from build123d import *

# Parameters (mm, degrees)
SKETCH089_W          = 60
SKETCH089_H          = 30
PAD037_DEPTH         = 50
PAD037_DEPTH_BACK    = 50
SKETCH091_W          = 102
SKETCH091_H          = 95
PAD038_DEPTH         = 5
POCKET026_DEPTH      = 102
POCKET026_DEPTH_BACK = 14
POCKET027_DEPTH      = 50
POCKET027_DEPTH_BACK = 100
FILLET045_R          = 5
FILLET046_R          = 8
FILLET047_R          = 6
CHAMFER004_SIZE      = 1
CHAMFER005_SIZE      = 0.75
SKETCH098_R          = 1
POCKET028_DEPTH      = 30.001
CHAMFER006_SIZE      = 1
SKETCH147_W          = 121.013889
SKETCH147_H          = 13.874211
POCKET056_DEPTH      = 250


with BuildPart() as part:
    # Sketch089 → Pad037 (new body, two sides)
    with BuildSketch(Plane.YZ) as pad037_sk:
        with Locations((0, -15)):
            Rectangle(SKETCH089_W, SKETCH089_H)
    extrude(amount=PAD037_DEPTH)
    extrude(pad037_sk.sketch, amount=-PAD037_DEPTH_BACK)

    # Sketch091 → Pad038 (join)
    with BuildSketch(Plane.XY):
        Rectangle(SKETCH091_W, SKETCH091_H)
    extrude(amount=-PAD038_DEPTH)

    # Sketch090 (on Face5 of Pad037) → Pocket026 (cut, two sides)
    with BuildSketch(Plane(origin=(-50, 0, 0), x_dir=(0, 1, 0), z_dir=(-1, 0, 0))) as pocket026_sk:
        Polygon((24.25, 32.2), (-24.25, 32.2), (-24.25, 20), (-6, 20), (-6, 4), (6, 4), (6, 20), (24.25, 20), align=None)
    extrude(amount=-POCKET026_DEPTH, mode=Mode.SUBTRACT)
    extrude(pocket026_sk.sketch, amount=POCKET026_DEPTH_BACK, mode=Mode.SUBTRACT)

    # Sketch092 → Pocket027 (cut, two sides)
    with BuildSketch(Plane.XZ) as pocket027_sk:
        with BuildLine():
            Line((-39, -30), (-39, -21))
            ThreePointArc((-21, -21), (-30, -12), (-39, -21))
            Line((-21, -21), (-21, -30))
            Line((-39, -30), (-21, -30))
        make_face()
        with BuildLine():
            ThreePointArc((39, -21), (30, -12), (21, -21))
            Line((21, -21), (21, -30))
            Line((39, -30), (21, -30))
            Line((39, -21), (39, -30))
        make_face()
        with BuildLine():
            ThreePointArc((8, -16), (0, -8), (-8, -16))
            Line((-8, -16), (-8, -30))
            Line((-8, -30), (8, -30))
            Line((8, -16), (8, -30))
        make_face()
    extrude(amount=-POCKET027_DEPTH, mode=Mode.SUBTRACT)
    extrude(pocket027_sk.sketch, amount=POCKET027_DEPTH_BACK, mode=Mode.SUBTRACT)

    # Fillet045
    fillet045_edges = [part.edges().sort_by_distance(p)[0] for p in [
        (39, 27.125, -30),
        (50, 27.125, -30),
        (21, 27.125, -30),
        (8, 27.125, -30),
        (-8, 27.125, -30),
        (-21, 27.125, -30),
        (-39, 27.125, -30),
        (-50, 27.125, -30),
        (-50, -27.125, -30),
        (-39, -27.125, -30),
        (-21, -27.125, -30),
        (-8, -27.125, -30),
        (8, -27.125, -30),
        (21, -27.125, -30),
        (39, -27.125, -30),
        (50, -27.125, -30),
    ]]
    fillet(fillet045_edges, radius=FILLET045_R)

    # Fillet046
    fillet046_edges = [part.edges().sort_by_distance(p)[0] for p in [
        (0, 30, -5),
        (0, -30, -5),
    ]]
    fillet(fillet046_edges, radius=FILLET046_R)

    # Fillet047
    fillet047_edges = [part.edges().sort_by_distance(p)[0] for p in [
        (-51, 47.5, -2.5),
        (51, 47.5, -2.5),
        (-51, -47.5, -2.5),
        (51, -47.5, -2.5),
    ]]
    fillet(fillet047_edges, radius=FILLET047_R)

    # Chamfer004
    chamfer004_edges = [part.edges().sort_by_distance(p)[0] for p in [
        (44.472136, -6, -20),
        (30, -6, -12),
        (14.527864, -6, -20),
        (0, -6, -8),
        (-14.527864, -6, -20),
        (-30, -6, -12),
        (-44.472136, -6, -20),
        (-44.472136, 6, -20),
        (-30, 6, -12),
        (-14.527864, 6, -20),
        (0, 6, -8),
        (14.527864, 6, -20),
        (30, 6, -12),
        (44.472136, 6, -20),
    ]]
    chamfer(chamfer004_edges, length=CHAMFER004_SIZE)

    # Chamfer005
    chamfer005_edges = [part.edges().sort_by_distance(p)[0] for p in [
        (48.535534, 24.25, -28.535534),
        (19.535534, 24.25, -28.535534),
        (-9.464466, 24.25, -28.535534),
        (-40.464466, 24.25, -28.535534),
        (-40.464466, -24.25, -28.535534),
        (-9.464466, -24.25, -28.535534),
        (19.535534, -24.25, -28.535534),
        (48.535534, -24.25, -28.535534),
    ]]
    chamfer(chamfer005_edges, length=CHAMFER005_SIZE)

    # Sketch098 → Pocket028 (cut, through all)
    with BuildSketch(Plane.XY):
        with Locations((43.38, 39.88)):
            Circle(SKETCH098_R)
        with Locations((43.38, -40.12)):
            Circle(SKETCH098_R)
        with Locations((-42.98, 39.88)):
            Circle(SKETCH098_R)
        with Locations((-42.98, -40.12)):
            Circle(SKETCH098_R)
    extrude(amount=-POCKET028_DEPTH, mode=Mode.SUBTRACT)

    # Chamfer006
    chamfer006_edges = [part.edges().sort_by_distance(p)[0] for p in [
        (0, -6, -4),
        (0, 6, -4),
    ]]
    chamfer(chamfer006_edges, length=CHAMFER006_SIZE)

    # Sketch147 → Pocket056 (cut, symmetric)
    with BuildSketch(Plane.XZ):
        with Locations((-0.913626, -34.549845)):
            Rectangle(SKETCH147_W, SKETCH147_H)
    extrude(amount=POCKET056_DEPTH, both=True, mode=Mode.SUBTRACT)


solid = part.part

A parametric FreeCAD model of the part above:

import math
import FreeCAD as App
import Part
import Sketcher
Q = App.Units.Quantity


def edges_at(feature, points):
    """Names of the edges that pass closest to the given points."""
    edges = feature.Shape.Edges
    near = lambda p: min(range(len(edges)), key=lambda i: edges[i].distToShape(Part.Vertex(*p))[0])
    return sorted({f"Edge{near(p) + 1}" for p in points})

doc = App.newDocument("Part")
body = doc.addObject("PartDesign::Body", "Body")

sketch1 = body.newObject("Sketcher::SketchObject", "Sketch")
sketch1.AttachmentSupport = (doc.getObject("YZ_Plane"), [""])
sketch1.MapMode = "FlatFace"
sketch1.addGeometry([
    Part.LineSegment(App.Vector(-30, 0, 0), App.Vector(-30, -30, 0)),
    Part.LineSegment(App.Vector(-30, -30, 0), App.Vector(30, -30, 0)),
    Part.LineSegment(App.Vector(30, -30, 0), App.Vector(30, 0, 0)),
    Part.LineSegment(App.Vector(30, 0, 0), App.Vector(-30, 0, 0)),
], False)
sketch1.addConstraint([
    Sketcher.Constraint("Coincident", 0, 2, 1, 1),
    Sketcher.Constraint("Coincident", 1, 2, 2, 1),
    Sketcher.Constraint("Coincident", 2, 2, 3, 1),
    Sketcher.Constraint("Coincident", 3, 2, 0, 1),
    Sketcher.Constraint("Vertical", 0),
    Sketcher.Constraint("Horizontal", 1),
    Sketcher.Constraint("Vertical", 2),
    Sketcher.Constraint("Horizontal", 3),
    Sketcher.Constraint("Symmetric", 2, 2, 3, 2, -1, 1),
    Sketcher.Constraint("DistanceX", 1, 1, 1, 2, Q("60 mm")),
    Sketcher.Constraint("DistanceY", 0, 2, 0, 1, Q("30 mm")),
])
pad1 = body.newObject("PartDesign::Pad", "Pad")
pad1.Profile = sketch1
pad1.Type = "TwoLengths"
pad1.Length = 50
pad1.Length2 = 50

sketch2 = body.newObject("Sketcher::SketchObject", "Sketch001")
sketch2.AttachmentSupport = (doc.getObject("XY_Plane"), [""])
sketch2.MapMode = "FlatFace"
sketch2.addGeometry([
    Part.LineSegment(App.Vector(-51, 48, 0), App.Vector(-51, -48, 0)),
    Part.LineSegment(App.Vector(-51, -48, 0), App.Vector(51, -48, 0)),
    Part.LineSegment(App.Vector(51, -48, 0), App.Vector(51, 48, 0)),
    Part.LineSegment(App.Vector(51, 48, 0), App.Vector(-51, 48, 0)),
], False)
sketch2.addConstraint([
    Sketcher.Constraint("Coincident", 0, 2, 1, 1),
    Sketcher.Constraint("Coincident", 1, 2, 2, 1),
    Sketcher.Constraint("Coincident", 2, 2, 3, 1),
    Sketcher.Constraint("Coincident", 3, 2, 0, 1),
    Sketcher.Constraint("Vertical", 0),
    Sketcher.Constraint("Horizontal", 1),
    Sketcher.Constraint("Vertical", 2),
    Sketcher.Constraint("Horizontal", 3),
    Sketcher.Constraint("Symmetric", 0, 2, 2, 2, -1, 1),
    Sketcher.Constraint("DistanceX", 1, 1, 1, 2, Q("102 mm")),
    Sketcher.Constraint("DistanceY", 0, 2, 0, 1, Q("95 mm")),
])
pad2 = body.newObject("PartDesign::Pad", "Pad001")
pad2.Profile = sketch2
pad2.Length = 5
pad2.Reversed = True

sketch3 = body.newObject("Sketcher::SketchObject", "Sketch002")
sketch3.AttachmentSupport = (doc.getObject("YZ_Plane"), [""])
sketch3.MapMode = "FlatFace"
sketch3.AttachmentOffset = App.Placement(App.Vector(0, 0, -50), App.Rotation())
sketch3.addGeometry([
    Part.LineSegment(App.Vector(24, -32, 0), App.Vector(-24, -32, 0)),
    Part.LineSegment(App.Vector(-24, -32, 0), App.Vector(-24, -20, 0)),
    Part.LineSegment(App.Vector(-24, -20, 0), App.Vector(-6, -20, 0)),
    Part.LineSegment(App.Vector(-6, -20, 0), App.Vector(-6, -4, 0)),
    Part.LineSegment(App.Vector(-6, -4, 0), App.Vector(6, -4, 0)),
    Part.LineSegment(App.Vector(6, -4, 0), App.Vector(6, -20, 0)),
    Part.LineSegment(App.Vector(6, -20, 0), App.Vector(24, -20, 0)),
    Part.LineSegment(App.Vector(24, -20, 0), App.Vector(24, -32, 0)),
], False)
sketch3.addConstraint([
    Sketcher.Constraint("Coincident", 0, 2, 1, 1),
    Sketcher.Constraint("Coincident", 1, 2, 2, 1),
    Sketcher.Constraint("Coincident", 2, 2, 3, 1),
    Sketcher.Constraint("Coincident", 3, 2, 4, 1),
    Sketcher.Constraint("Coincident", 4, 2, 5, 1),
    Sketcher.Constraint("Coincident", 5, 2, 6, 1),
    Sketcher.Constraint("Coincident", 6, 2, 7, 1),
    Sketcher.Constraint("Coincident", 7, 2, 0, 1),
    Sketcher.Constraint("Horizontal", 0),
    Sketcher.Constraint("Vertical", 1),
    Sketcher.Constraint("Horizontal", 2),
    Sketcher.Constraint("Vertical", 3),
    Sketcher.Constraint("Horizontal", 4),
    Sketcher.Constraint("Vertical", 5),
    Sketcher.Constraint("Horizontal", 6),
    Sketcher.Constraint("Vertical", 7),
    Sketcher.Constraint("Symmetric", 2, 2, 5, 2, -2),
    Sketcher.Constraint("Equal", 2, 6),
    Sketcher.Constraint("DistanceX", 4, 1, 4, 2, Q("12 mm")),
    Sketcher.Constraint("DistanceY", 3, 1, 3, 2, Q("16 mm")),
    Sketcher.Constraint("DistanceX", 0, 2, 0, 1, Q("48.5 mm")),
    Sketcher.Constraint("DistanceY", 1, 1, 1, 2, Q("12.2 mm")),
    Sketcher.Constraint("DistanceY", 1, 2, -1, 1, Q("20 mm")),
])
pocket1 = body.newObject("PartDesign::Pocket", "Pocket")
pocket1.Profile = sketch3
pocket1.Type = "ThroughAll"
pocket1.Midplane = True

sketch4 = body.newObject("Sketcher::SketchObject", "Sketch003")
sketch4.AttachmentSupport = (doc.getObject("XZ_Plane"), [""])
sketch4.MapMode = "FlatFace"
sketch4.addGeometry([
    Part.LineSegment(App.Vector(-39, -21, 0), App.Vector(-39, -30, 0)),
    Part.LineSegment(App.Vector(-39, -30, 0), App.Vector(-21, -30, 0)),
    Part.LineSegment(App.Vector(-21, -30, 0), App.Vector(-21, -21, 0)),
    Part.ArcOfCircle(Part.Circle(App.Vector(-30, -21, 0), App.Vector(0, 0, 1), 9), math.radians(0), math.radians(180)),
    Part.ArcOfCircle(Part.Circle(App.Vector(30, -21, 0), App.Vector(0, 0, 1), 9), math.radians(0), math.radians(180)),
    Part.LineSegment(App.Vector(21, -21, 0), App.Vector(21, -30, 0)),
    Part.LineSegment(App.Vector(21, -30, 0), App.Vector(39, -30, 0)),
    Part.LineSegment(App.Vector(39, -30, 0), App.Vector(39, -21, 0)),
    Part.ArcOfCircle(Part.Circle(App.Vector(0, -16, 0), App.Vector(0, 0, 1), 8), math.radians(0), math.radians(180)),
    Part.LineSegment(App.Vector(-8, -16, 0), App.Vector(-8, -30, 0)),
    Part.LineSegment(App.Vector(-8, -30, 0), App.Vector(8, -30, 0)),
    Part.LineSegment(App.Vector(8, -30, 0), App.Vector(8, -16, 0)),
], False)
sketch4.addConstraint([
    Sketcher.Constraint("Coincident", 0, 2, 1, 1),
    Sketcher.Constraint("Coincident", 1, 2, 2, 1),
    Sketcher.Constraint("Tangent", 2, 2, 3, 1),
    Sketcher.Constraint("Tangent", 3, 2, 0, 1),
    Sketcher.Constraint("Tangent", 4, 2, 5, 1),
    Sketcher.Constraint("Coincident", 5, 2, 6, 1),
    Sketcher.Constraint("Coincident", 6, 2, 7, 1),
    Sketcher.Constraint("Tangent", 7, 2, 4, 1),
    Sketcher.Constraint("Tangent", 8, 2, 9, 1),
    Sketcher.Constraint("Coincident", 9, 2, 10, 1),
    Sketcher.Constraint("Coincident", 10, 2, 11, 1),
    Sketcher.Constraint("Tangent", 11, 2, 8, 1),
    Sketcher.Constraint("Vertical", 0),
    Sketcher.Constraint("Horizontal", 1),
    Sketcher.Constraint("Vertical", 2),
    Sketcher.Constraint("Vertical", 5),
    Sketcher.Constraint("Horizontal", 6),
    Sketcher.Constraint("Vertical", 7),
    Sketcher.Constraint("Vertical", 9),
    Sketcher.Constraint("Horizontal", 10),
    Sketcher.Constraint("Vertical", 11),
    Sketcher.Constraint("Equal", 3, 4),
    Sketcher.Constraint("Symmetric", 3, 3, 4, 3, -2),
    Sketcher.Constraint("PointOnObject", 8, 3, -2),
    Sketcher.Constraint("Horizontal", 1, 2, 5, 2),
    Sketcher.Constraint("Horizontal", 6, 2, 9, 2),
    Sketcher.Constraint("Radius", 3, Q("9 mm")),
    Sketcher.Constraint("Radius", 8, Q("8 mm")),
    Sketcher.Constraint("DistanceY", 0, 2, 0, 1, Q("9 mm")),
    Sketcher.Constraint("DistanceY", 9, 2, 9, 1, Q("14 mm")),
    Sketcher.Constraint("DistanceX", 3, 3, -1, 1, Q("30 mm")),
    Sketcher.Constraint("DistanceY", 3, 3, -1, 1, Q("21 mm")),
])
pocket2 = body.newObject("PartDesign::Pocket", "Pocket001")
pocket2.Profile = sketch4
pocket2.Type = "ThroughAll"
pocket2.Midplane = True
doc.recompute()

fillet = body.newObject("PartDesign::Fillet", "Fillet")
fillet.Base = (pocket2, edges_at(pocket2, [
    (39, 27.125, -30),
    (50, 27.125, -30),
    (21, 27.125, -30),
    (8, 27.125, -30),
    (-8, 27.125, -30),
    (-21, 27.125, -30),
    (-39, 27.125, -30),
    (-50, 27.125, -30),
    (-50, -27.125, -30),
    (-39, -27.125, -30),
    (-21, -27.125, -30),
    (-8, -27.125, -30),
    (8, -27.125, -30),
    (21, -27.125, -30),
    (39, -27.125, -30),
    (50, -27.125, -30),
]))
fillet.Radius = 5
doc.recompute()

fillet2 = body.newObject("PartDesign::Fillet", "Fillet001")
fillet2.Base = (fillet, edges_at(fillet, [(0, 30, -5), (0, -30, -5)]))
fillet2.Radius = 8
doc.recompute()

fillet3 = body.newObject("PartDesign::Fillet", "Fillet002")
fillet3.Base = (fillet2, edges_at(fillet2, [
    (-51, 47.5, -2.5),
    (51, 47.5, -2.5),
    (-51, -47.5, -2.5),
    (51, -47.5, -2.5),
]))
fillet3.Radius = 6
doc.recompute()

chamfer = body.newObject("PartDesign::Chamfer", "Chamfer")
chamfer.Base = (fillet3, edges_at(fillet3, [
    (44.472, -6, -20),
    (30, -6, -12),
    (14.528, -6, -20),
    (0, -6, -8),
    (-14.528, -6, -20),
    (-30, -6, -12),
    (-44.472, -6, -20),
    (-44.472, 6, -20),
    (-30, 6, -12),
    (-14.528, 6, -20),
    (0, 6, -8),
    (14.528, 6, -20),
    (30, 6, -12),
    (44.472, 6, -20),
]))
chamfer.Size = 1
doc.recompute()

chamfer2 = body.newObject("PartDesign::Chamfer", "Chamfer001")
chamfer2.Base = (chamfer, edges_at(chamfer, [
    (48.536, 24.25, -28.536),
    (19.536, 24.25, -28.536),
    (-9.464, 24.25, -28.536),
    (-40.464, 24.25, -28.536),
    (-40.464, -24.25, -28.536),
    (-9.464, -24.25, -28.536),
    (19.536, -24.25, -28.536),
    (48.536, -24.25, -28.536),
]))
chamfer2.Size = 0.75

sketch5 = body.newObject("Sketcher::SketchObject", "Sketch004")
sketch5.AttachmentSupport = (doc.getObject("XY_Plane"), [""])
sketch5.MapMode = "FlatFace"
sketch5.addGeometry([
    Part.Circle(App.Vector(43.4, 39.9, 0), App.Vector(0, 0, 1), 1),
    Part.Circle(App.Vector(43.4, -40.1, 0), App.Vector(0, 0, 1), 1),
    Part.Circle(App.Vector(-43, 39.9, 0), App.Vector(0, 0, 1), 1),
    Part.Circle(App.Vector(-43, -40.1, 0), App.Vector(0, 0, 1), 1),
], False)
sketch5.addConstraint([
    Sketcher.Constraint("Equal", 0, 1),
    Sketcher.Constraint("Equal", 1, 2),
    Sketcher.Constraint("Equal", 2, 3),
    Sketcher.Constraint("Horizontal", 0, 3, 2, 3),
    Sketcher.Constraint("Horizontal", 1, 3, 3, 3),
    Sketcher.Constraint("Vertical", 0, 3, 1, 3),
    Sketcher.Constraint("Vertical", 2, 3, 3, 3),
    Sketcher.Constraint("Diameter", 0, Q("2 mm")),
    Sketcher.Constraint("DistanceY", 1, 3, 0, 3, Q("80 mm")),
    Sketcher.Constraint("DistanceX", -1, 1, 0, 3, Q("43.38 mm")),
    Sketcher.Constraint("DistanceY", -1, 1, 0, 3, Q("39.88 mm")),
    Sketcher.Constraint("DistanceX", 2, 3, -1, 1, Q("42.98 mm")),
])
pocket3 = body.newObject("PartDesign::Pocket", "Pocket002")
pocket3.Profile = sketch5
pocket3.Type = "ThroughAll"
doc.recompute()

chamfer3 = body.newObject("PartDesign::Chamfer", "Chamfer002")
chamfer3.Base = (pocket3, edges_at(pocket3, [(0, -6, -4), (0, 6, -4)]))
chamfer3.Size = 1

sketch6 = body.newObject("Sketcher::SketchObject", "Sketch005")
sketch6.AttachmentSupport = (doc.getObject("XZ_Plane"), [""])
sketch6.MapMode = "FlatFace"
sketch6.addGeometry([
    Part.LineSegment(App.Vector(-61, -28, 0), App.Vector(-61, -41, 0)),
    Part.LineSegment(App.Vector(-61, -41, 0), App.Vector(60, -41, 0)),
    Part.LineSegment(App.Vector(60, -41, 0), App.Vector(60, -28, 0)),
    Part.LineSegment(App.Vector(60, -28, 0), App.Vector(-61, -28, 0)),
], False)
sketch6.addConstraint([
    Sketcher.Constraint("Coincident", 0, 2, 1, 1),
    Sketcher.Constraint("Coincident", 1, 2, 2, 1),
    Sketcher.Constraint("Coincident", 2, 2, 3, 1),
    Sketcher.Constraint("Coincident", 3, 2, 0, 1),
    Sketcher.Constraint("Vertical", 0),
    Sketcher.Constraint("Horizontal", 1),
    Sketcher.Constraint("Vertical", 2),
    Sketcher.Constraint("Horizontal", 3),
    Sketcher.Constraint("DistanceX", 1, 1, 1, 2, Q("121.013889 mm")),
    Sketcher.Constraint("DistanceY", 0, 2, 0, 1, Q("13.874211 mm")),
    Sketcher.Constraint("DistanceX", 0, 2, -1, 1, Q("61.42057 mm")),
    Sketcher.Constraint("DistanceY", 0, 2, -1, 1, Q("41.48695 mm")),
])
pocket4 = body.newObject("PartDesign::Pocket", "Pocket003")
pocket4.Profile = sketch6
pocket4.Length = 500
pocket4.Midplane = True

doc.recompute()
